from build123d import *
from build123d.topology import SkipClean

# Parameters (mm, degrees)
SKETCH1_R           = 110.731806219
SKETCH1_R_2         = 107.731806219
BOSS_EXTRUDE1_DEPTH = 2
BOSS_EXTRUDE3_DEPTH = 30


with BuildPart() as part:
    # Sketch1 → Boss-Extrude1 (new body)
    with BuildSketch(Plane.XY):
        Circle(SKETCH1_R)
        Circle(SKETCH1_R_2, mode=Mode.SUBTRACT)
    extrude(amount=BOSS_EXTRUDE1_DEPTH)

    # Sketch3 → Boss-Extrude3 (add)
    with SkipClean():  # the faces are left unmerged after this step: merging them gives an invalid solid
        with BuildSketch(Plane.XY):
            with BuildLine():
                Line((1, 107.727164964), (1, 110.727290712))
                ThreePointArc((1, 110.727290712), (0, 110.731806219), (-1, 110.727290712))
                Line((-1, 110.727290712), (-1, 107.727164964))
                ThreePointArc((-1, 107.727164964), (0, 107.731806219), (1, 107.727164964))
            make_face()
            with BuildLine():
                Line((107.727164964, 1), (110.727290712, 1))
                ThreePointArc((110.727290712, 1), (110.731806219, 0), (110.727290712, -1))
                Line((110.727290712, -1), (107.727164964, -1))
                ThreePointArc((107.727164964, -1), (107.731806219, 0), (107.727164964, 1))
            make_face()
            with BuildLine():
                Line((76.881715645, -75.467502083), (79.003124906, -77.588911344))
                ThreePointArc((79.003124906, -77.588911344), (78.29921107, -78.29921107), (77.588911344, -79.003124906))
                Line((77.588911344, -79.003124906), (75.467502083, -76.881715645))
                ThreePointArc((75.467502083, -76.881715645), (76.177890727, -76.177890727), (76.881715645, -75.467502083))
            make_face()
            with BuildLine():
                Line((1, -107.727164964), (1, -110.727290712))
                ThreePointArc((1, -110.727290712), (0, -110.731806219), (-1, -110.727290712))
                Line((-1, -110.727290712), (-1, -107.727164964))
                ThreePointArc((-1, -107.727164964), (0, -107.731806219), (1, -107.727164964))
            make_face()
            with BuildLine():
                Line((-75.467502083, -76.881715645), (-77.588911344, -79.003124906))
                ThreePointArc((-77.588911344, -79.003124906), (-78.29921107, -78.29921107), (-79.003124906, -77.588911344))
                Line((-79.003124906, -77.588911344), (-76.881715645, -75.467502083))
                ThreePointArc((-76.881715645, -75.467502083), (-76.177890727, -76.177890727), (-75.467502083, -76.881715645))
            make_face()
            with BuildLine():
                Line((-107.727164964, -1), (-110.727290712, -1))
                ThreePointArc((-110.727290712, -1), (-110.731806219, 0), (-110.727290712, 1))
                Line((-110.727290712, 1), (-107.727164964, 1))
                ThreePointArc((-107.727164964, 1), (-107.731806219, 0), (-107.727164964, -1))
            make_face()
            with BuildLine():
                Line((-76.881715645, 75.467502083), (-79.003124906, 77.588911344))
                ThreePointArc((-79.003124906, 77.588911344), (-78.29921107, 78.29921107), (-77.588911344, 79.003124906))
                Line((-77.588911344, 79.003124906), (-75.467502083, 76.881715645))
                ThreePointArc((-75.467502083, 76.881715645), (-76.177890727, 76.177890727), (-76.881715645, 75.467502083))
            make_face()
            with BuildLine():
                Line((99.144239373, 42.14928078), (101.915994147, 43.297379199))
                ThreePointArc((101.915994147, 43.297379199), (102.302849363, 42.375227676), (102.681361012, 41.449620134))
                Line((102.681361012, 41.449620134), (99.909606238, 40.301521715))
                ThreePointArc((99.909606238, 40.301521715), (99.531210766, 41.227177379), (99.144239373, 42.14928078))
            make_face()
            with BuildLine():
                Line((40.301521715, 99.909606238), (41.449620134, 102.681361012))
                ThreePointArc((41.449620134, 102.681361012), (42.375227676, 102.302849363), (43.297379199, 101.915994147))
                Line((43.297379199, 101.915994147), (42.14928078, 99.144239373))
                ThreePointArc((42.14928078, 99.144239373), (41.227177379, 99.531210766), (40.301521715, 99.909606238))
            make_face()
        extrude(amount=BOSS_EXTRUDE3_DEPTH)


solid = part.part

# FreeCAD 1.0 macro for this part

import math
import FreeCAD as App
import Part
import Sketcher
Q = App.Units.Quantity

doc = App.newDocument("Part")
body = doc.addObject("PartDesign::Body", "Body")

# Sketch on XY plane
sketch1 = body.newObject("Sketcher::SketchObject", "Sketch")
sketch1.AttachmentSupport = (doc.getObject("XY_Plane"), [""])
sketch1.MapMode = "FlatFace"
sketch1.addGeometry([
    Part.Circle(App.Vector(0, 0, 0), App.Vector(0, 0, 1), 111),
    Part.Circle(App.Vector(0, 0, 0), App.Vector(0, 0, 1), 108),
], False)
sketch1.addConstraint([
    Sketcher.Constraint("Coincident", 0, 3, -1, 1),
    Sketcher.Constraint("Coincident", 1, 3, -1, 1),
    Sketcher.Constraint("Diameter", 0, 221.463612),
    Sketcher.Constraint("Diameter", 1, 215.463612),
])
pad1 = body.newObject("PartDesign::Pad", "Pad")
pad1.Profile = sketch1
pad1.Length = 2

# Sketch on XY plane
sketch2 = body.newObject("Sketcher::SketchObject", "Sketch001")
sketch2.AttachmentSupport = (doc.getObject("XY_Plane"), [""])
sketch2.MapMode = "FlatFace"
sketch2.addGeometry([
    Part.LineSegment(App.Vector(1, 107.727165, 0), App.Vector(1, 110.727291, 0)),  # 0
    Part.ArcOfCircle(Part.Circle(App.Vector(0, 0.000011, 0), App.Vector(0, 0, 1), 110.731795), math.radians(89.482565), math.radians(90.517435)),  # 1
    Part.LineSegment(App.Vector(-1, 110.727291, 0), App.Vector(-1, 107.727165, 0)),  # 2
    Part.ArcOfCircle(Part.Circle(App.Vector(0, 0.000003, 0), App.Vector(0, 0, 1), 107.731803), math.radians(89.468155), math.radians(90.531845)),  # 3
    Part.LineSegment(App.Vector(110.727291, 1, 0), App.Vector(107.727165, 1, 0)),  # 4
    Part.ArcOfCircle(Part.Circle(App.Vector(0.000003, 0, 0), App.Vector(0, 0, 1), 107.731803), math.radians(-0.531845), math.radians(0.531845)),  # 5
    Part.LineSegment(App.Vector(107.727165, -1, 0), App.Vector(110.727291, -1, 0)),  # 6
    Part.ArcOfCircle(Part.Circle(App.Vector(0.000011, 0, 0), App.Vector(0, 0, 1), 110.731795), math.radians(-0.517435), math.radians(0.517435)),  # 7
    Part.LineSegment(App.Vector(79.003125, -77.588911, 0), App.Vector(76.881716, -75.467502, 0)),  # 8
    Part.ArcOfCircle(Part.Circle(App.Vector(0.000005, -0.000005, 0), App.Vector(0, 0, 1), 107.731799), math.radians(-45.531845), math.radians(-44.468155)),  # 9
    Part.LineSegment(App.Vector(75.467502, -76.881716, 0), App.Vector(77.588911, -79.003125, 0)),  # 10
    Part.ArcOfCircle(Part.Circle(App.Vector(-0.000007, 0.000007, 0), App.Vector(0, 0, 1), 110.731816), math.radians(-45.517435), math.radians(-44.482565)),  # 11
    Part.LineSegment(App.Vector(1, -110.727291, 0), App.Vector(1, -107.727165, 0)),  # 12
    Part.ArcOfCircle(Part.Circle(App.Vector(0, -0.000003, 0), App.Vector(0, 0, 1), 107.731803), math.radians(-90.531845), math.radians(-89.468155)),  # 13
    Part.LineSegment(App.Vector(-1, -107.727165, 0), App.Vector(-1, -110.727291, 0)),  # 14
    Part.ArcOfCircle(Part.Circle(App.Vector(0, -0.000011, 0), App.Vector(0, 0, 1), 110.731795), math.radians(-90.517435), math.radians(-89.482565)),  # 15
    Part.LineSegment(App.Vector(-77.588911, -79.003125, 0), App.Vector(-75.467502, -76.881716, 0)),  # 16
    Part.ArcOfCircle(Part.Circle(App.Vector(-0.000005, -0.000005, 0), App.Vector(0, 0, 1), 107.731799), math.radians(-135.531845), math.radians(-134.468155)),  # 17
    Part.LineSegment(App.Vector(-76.881716, -75.467502, 0), App.Vector(-79.003125, -77.588911, 0)),  # 18
    Part.ArcOfCircle(Part.Circle(App.Vector(0.000007, 0.000007, 0), App.Vector(0, 0, 1), 110.731816), math.radians(-135.517435), math.radians(-134.482565)),  # 19
    Part.LineSegment(App.Vector(-110.727291, -1, 0), App.Vector(-107.727165, -1, 0)),  # 20
    Part.ArcOfCircle(Part.Circle(App.Vector(-0.000003, 0, 0), App.Vector(0, 0, 1), 107.731803), math.radians(179.468155), math.radians(180.531845)),  # 21
    Part.LineSegment(App.Vector(-107.727165, 1, 0), App.Vector(-110.727291, 1, 0)),  # 22
    Part.ArcOfCircle(Part.Circle(App.Vector(-0.000011, 0, 0), App.Vector(0, 0, 1), 110.731795), math.radians(179.482565), math.radians(180.517435)),  # 23
    Part.LineSegment(App.Vector(-79.003125, 77.588911, 0), App.Vector(-76.881716, 75.467502, 0)),  # 24
    Part.ArcOfCircle(Part.Circle(App.Vector(-0.000005, 0.000005, 0), App.Vector(0, 0, 1), 107.731799), math.radians(134.468155), math.radians(135.531845)),  # 25
    Part.LineSegment(App.Vector(-75.467502, 76.881716, 0), App.Vector(-77.588911, 79.003125, 0)),  # 26
    Part.ArcOfCircle(Part.Circle(App.Vector(0.000007, -0.000007, 0), App.Vector(0, 0, 1), 110.731816), math.radians(134.482565), math.radians(135.517435)),  # 27
    Part.LineSegment(App.Vector(101.915994, 43.297379, 0), App.Vector(99.144239, 42.149281, 0)),  # 28
    Part.ArcOfCircle(Part.Circle(App.Vector(0.000004, 0.000001, 0), App.Vector(0, 0, 1), 107.731802), math.radians(21.968155), math.radians(23.031845)),  # 29
    Part.LineSegment(App.Vector(99.909606, 40.301522, 0), App.Vector(102.681361, 41.44962, 0)),  # 30
    Part.ArcOfCircle(Part.Circle(App.Vector(-0.000012, -0.000005, 0), App.Vector(0, 0, 1), 110.73182), math.radians(21.982565), math.radians(23.017435)),  # 31
    Part.LineSegment(App.Vector(41.44962, 102.681361, 0), App.Vector(40.301522, 99.909606, 0)),  # 32
    Part.ArcOfCircle(Part.Circle(App.Vector(0.000001, 0.000004, 0), App.Vector(0, 0, 1), 107.731802), math.radians(66.968155), math.radians(68.031845)),  # 33
    Part.LineSegment(App.Vector(42.149281, 99.144239, 0), App.Vector(43.297379, 101.915994, 0)),  # 34
    Part.ArcOfCircle(Part.Circle(App.Vector(-0.000005, -0.000012, 0), App.Vector(0, 0, 1), 110.731819), math.radians(66.982565), math.radians(68.017435)),  # 35
], False)
sketch2.addConstraint([
    Sketcher.Constraint("Coincident", 0, 2, 1, 1),
    Sketcher.Constraint("Coincident", 1, 2, 2, 1),
    Sketcher.Constraint("Coincident", 2, 2, 3, 2),
    Sketcher.Constraint("Coincident", 3, 1, 0, 1),
    Sketcher.Constraint("Coincident", 4, 2, 5, 2),
    Sketcher.Constraint("Coincident", 5, 1, 6, 1),
    Sketcher.Constraint("Coincident", 6, 2, 7, 1),
    Sketcher.Constraint("Coincident", 7, 2, 4, 1),
    Sketcher.Constraint("Coincident", 8, 2, 9, 2),
    Sketcher.Constraint("Coincident", 9, 1, 10, 1),
    Sketcher.Constraint("Coincident", 10, 2, 11, 1),
    Sketcher.Constraint("Coincident", 11, 2, 8, 1),
    Sketcher.Constraint("Coincident", 12, 2, 13, 2),
    Sketcher.Constraint("Coincident", 13, 1, 14, 1),
    Sketcher.Constraint("Coincident", 14, 2, 15, 1),
    Sketcher.Constraint("Coincident", 15, 2, 12, 1),
    Sketcher.Constraint("Coincident", 16, 2, 17, 2),
    Sketcher.Constraint("Coincident", 17, 1, 18, 1),
    Sketcher.Constraint("Coincident", 18, 2, 19, 1),
    Sketcher.Constraint("Coincident", 19, 2, 16, 1),
    Sketcher.Constraint("Coincident", 20, 2, 21, 2),
    Sketcher.Constraint("Coincident", 21, 1, 22, 1),
    Sketcher.Constraint("Coincident", 22, 2, 23, 1),
    Sketcher.Constraint("Coincident", 23, 2, 20, 1),
    Sketcher.Constraint("Coincident", 24, 2, 25, 2),
    Sketcher.Constraint("Coincident", 25, 1, 26, 1),
    Sketcher.Constraint("Coincident", 26, 2, 27, 1),
    Sketcher.Constraint("Coincident", 27, 2, 24, 1),
    Sketcher.Constraint("Coincident", 28, 2, 29, 2),
    Sketcher.Constraint("Coincident", 29, 1, 30, 1),
    Sketcher.Constraint("Coincident", 30, 2, 31, 1),
    Sketcher.Constraint("Coincident", 31, 2, 28, 1),
    Sketcher.Constraint("Coincident", 32, 2, 33, 2),
    Sketcher.Constraint("Coincident", 33, 1, 34, 1),
    Sketcher.Constraint("Coincident", 34, 2, 35, 1),
    Sketcher.Constraint("Coincident", 35, 2, 32, 1),
    Sketcher.Constraint("Vertical", 0),
    Sketcher.Constraint("Vertical", 2),
    Sketcher.Constraint("Horizontal", 4),
    Sketcher.Constraint("Horizontal", 6),
    Sketcher.Constraint("Vertical", 12),
    Sketcher.Constraint("Vertical", 14),
    Sketcher.Constraint("Horizontal", 20),
    Sketcher.Constraint("Horizontal", 22),
    Sketcher.Constraint("Coincident", 3, 3, -1, 1),
    Sketcher.Constraint("Coincident", 5, 3, -1, 1),
    Sketcher.Constraint("Coincident", 9, 3, -1, 1),
    Sketcher.Constraint("Coincident", 13, 3, -1, 1),
    Sketcher.Constraint("Coincident", 17, 3, -1, 1),
    Sketcher.Constraint("Coincident", 21, 3, -1, 1),
    Sketcher.Constraint("Coincident", 25, 3, -1, 1),
    Sketcher.Constraint("Coincident", 29, 3, -1, 1),
    Sketcher.Constraint("Coincident", 33, 3, -1, 1),
    Sketcher.Constraint("Coincident", 3, 3, 1, 3),
    Sketcher.Constraint("Coincident", 7, 3, 5, 3),
    Sketcher.Constraint("Coincident", 11, 3, 1, 3),
    Sketcher.Constraint("Coincident", 15, 3, 9, 3),
    Sketcher.Constraint("Coincident", 19, 3, 1, 3),
    Sketcher.Constraint("Coincident", 23, 3, 11, 3),
    Sketcher.Constraint("Coincident", 27, 3, 5, 3),
    Sketcher.Constraint("Coincident", 31, 3, 17, 3),
    Sketcher.Constraint("Coincident", 35, 3, 15, 3),
    Sketcher.Constraint("Equal", 3, 5),
    Sketcher.Constraint("Equal", 1, 7),
    Sketcher.Constraint("Equal", 5, 13),
    Sketcher.Constraint("Equal", 7, 15),
    Sketcher.Constraint("Equal", 9, 17),
    Sketcher.Constraint("Equal", 11, 19),
    Sketcher.Constraint("Equal", 13, 21),
    Sketcher.Constraint("Equal", 15, 23),
    Sketcher.Constraint("Equal", 17, 25),
    Sketcher.Constraint("Equal", 19, 27),
    Sketcher.Constraint("Equal", 21, 29),
    Sketcher.Constraint("Equal", 29, 33),
    Sketcher.Constraint("Equal", 31, 35),
    Sketcher.Constraint("Parallel", 8, 10),
    Sketcher.Constraint("Perpendicular", 10, 16),
    Sketcher.Constraint("Parallel", 16, 18),
    Sketcher.Constraint("Perpendicular", 18, 24),
    Sketcher.Constraint("Parallel", 24, 26),
    Sketcher.Constraint("Parallel", 28, 30),
    Sketcher.Constraint("Parallel", 32, 34),
    Sketcher.Constraint("Horizontal", 0, 2, 1, 2),
    Sketcher.Constraint("Horizontal", 12, 2, 13, 1),
    Sketcher.Constraint("Horizontal", 9, 1, 16, 2),
    Sketcher.Constraint("Horizontal", 8, 2, 17, 1),
    Sketcher.Constraint("Horizontal", 11, 2, 18, 2),
    Sketcher.Constraint("Horizontal", 6, 2, 20, 2),
    Sketcher.Constraint("Horizontal", 7, 2, 21, 1),
    Sketcher.Constraint("Vertical", 4, 2, 5, 1),
    Sketcher.Constraint("Vertical", 3, 1, 12, 2),
    Sketcher.Constraint("Vertical", 17, 1, 24, 2),
    Sketcher.Constraint("Vertical", 16, 2, 25, 1),
    Sketcher.Constraint("Equal", 26, 28),
    Sketcher.Constraint("Equal", 28, 30),
    Sketcher.Constraint("Equal", 30, 32),
    Sketcher.Constraint("DistanceX", -1, 1, 0, 2, 1.0),
    Sketcher.Constraint("DistanceY", -1, 1, 4, 2, 1.0),
    Sketcher.Constraint("Angle", 28, Q("-157.5 deg")),
    Sketcher.Constraint("Angle", 32, Q("-112.5 deg")),
    Sketcher.Constraint("Radius", 9, 107.731799),
    Sketcher.Constraint("Radius", 31, 110.73182),
    Sketcher.Constraint("Radius", 1, 110.731795),
    Sketcher.Constraint("Radius", 3, 107.731803),
    Sketcher.Constraint("DistanceX", -1, 1, 10, 2, 77.588911),
    Sketcher.Constraint("DistanceY", 11, 2, -1, 1, 77.588911),
    Sketcher.Constraint("DistanceX", -1, 1, 28, 2, 99.144239),
    Sketcher.Constraint("DistanceX", -1, 1, 33, 1, 42.149281),
])
pad2 = body.newObject("PartDesign::Pad", "Pad001")
pad2.Profile = sketch2
pad2.Length = 30

doc.recompute()
